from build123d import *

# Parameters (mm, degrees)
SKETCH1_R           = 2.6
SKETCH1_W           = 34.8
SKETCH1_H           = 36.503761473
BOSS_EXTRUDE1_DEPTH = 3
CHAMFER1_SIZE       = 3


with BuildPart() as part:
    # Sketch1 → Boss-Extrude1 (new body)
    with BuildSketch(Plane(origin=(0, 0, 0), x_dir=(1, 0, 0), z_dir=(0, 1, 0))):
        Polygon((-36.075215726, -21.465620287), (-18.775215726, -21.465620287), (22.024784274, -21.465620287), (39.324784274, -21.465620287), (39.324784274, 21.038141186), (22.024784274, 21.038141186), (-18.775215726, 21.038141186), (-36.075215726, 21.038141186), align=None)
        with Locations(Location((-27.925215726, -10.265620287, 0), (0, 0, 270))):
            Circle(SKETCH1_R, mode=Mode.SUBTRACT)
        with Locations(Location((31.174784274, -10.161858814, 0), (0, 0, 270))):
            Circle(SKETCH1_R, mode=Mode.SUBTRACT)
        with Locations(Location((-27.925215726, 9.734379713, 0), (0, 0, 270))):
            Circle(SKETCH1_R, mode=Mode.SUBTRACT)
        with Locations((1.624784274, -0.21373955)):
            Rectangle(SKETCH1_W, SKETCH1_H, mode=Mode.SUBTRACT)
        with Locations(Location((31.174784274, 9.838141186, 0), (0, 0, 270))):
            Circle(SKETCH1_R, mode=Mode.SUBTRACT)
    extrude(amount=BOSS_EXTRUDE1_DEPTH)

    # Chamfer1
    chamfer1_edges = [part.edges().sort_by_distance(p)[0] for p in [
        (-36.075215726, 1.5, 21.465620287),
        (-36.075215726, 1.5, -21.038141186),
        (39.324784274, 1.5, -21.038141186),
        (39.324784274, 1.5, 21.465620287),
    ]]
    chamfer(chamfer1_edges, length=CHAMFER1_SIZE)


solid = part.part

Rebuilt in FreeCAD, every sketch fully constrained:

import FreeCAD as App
import Part
import Sketcher

V = App.Vector
Q = App.Units.Quantity


def edges_at(feature, points):
    """Names of the edges that pass closest to the given points."""
    edges = feature.Shape.Edges
    near = lambda p: min(range(len(edges)), key=lambda i: edges[i].distToShape(Part.Vertex(*p))[0])
    return sorted({f"Edge{near(p) + 1}" for p in points})

doc = App.newDocument("Part")
body = doc.addObject("PartDesign::Body", "Body")

sketch1 = body.newObject("Sketcher::SketchObject", "Sketch")
sketch1.AttachmentSupport = (doc.getObject("XZ_Plane"), [""])
sketch1.MapMode = "FlatFace"
sketch1.addGeometry([
    Part.LineSegment(V(-36.1, 21.5, 0), V(39.3, 21.5, 0)),
    Part.LineSegment(V(39.3, 21.5, 0), V(39.3, -21, 0)),
    Part.LineSegment(V(39.3, -21, 0), V(-36.1, -21, 0)),
    Part.LineSegment(V(-36.1, -21, 0), V(-36.1, 21.5, 0)),
    Part.Circle(V(-27.9, 10.3, 0), V(0, 0, 1), 2.6),
    Part.Circle(V(31.2, 10.2, 0), V(0, 0, 1), 2.6),
    Part.Circle(V(-27.9, -9.7, 0), V(0, 0, 1), 2.6),
    Part.LineSegment(V(19, 18.5, 0), V(-15.8, 18.5, 0)),
    Part.LineSegment(V(-15.8, 18.5, 0), V(-15.8, -18, 0)),
    Part.LineSegment(V(-15.8, -18, 0), V(19, -18, 0)),
    Part.LineSegment(V(19, -18, 0), V(19, 18.5, 0)),
    Part.Circle(V(31.2, -9.8, 0), V(0, 0, 1), 2.6),
], False)
sketch1.addConstraint([
    Sketcher.Constraint("Coincident", 0, 2, 1, 1),
    Sketcher.Constraint("Coincident", 1, 2, 2, 1),
    Sketcher.Constraint("Coincident", 2, 2, 3, 1),
    Sketcher.Constraint("Coincident", 3, 2, 0, 1),
    Sketcher.Constraint("Coincident", 7, 2, 8, 1),
    Sketcher.Constraint("Coincident", 8, 2, 9, 1),
    Sketcher.Constraint("Coincident", 9, 2, 10, 1),
    Sketcher.Constraint("Coincident", 10, 2, 7, 1),
    Sketcher.Constraint("Horizontal", 0),
    Sketcher.Constraint("Vertical", 1),
    Sketcher.Constraint("Horizontal", 2),
    Sketcher.Constraint("Vertical", 3),
    Sketcher.Constraint("Horizontal", 7),
    Sketcher.Constraint("Vertical", 8),
    Sketcher.Constraint("Horizontal", 9),
    Sketcher.Constraint("Vertical", 10),
    Sketcher.Constraint("Equal", 4, 5),
    Sketcher.Constraint("Equal", 5, 6),
    Sketcher.Constraint("Equal", 6, 11),
    Sketcher.Constraint("Vertical", 4, 3, 6, 3),
    Sketcher.Constraint("Vertical", 5, 3, 11, 3),
    Sketcher.Constraint("Diameter", 4, Q("5.2 mm")),
    Sketcher.Constraint("DistanceX", 0, 1, 0, 2, Q("75.4 mm")),
    Sketcher.Constraint("DistanceX", 7, 2, 7, 1, Q("34.8 mm")),
    Sketcher.Constraint("DistanceY", 6, 3, 4, 3, Q("20 mm")),
    Sketcher.Constraint("DistanceY", 11, 3, 5, 3, Q("20 mm")),
    Sketcher.Constraint("DistanceY", 7, 2, 3, 2, Q("3 mm")),
    Sketcher.Constraint("DistanceY", 2, 2, 8, 2, Q("3 mm")),
    Sketcher.Constraint("DistanceX", 4, 3, 5, 3, Q("59.1 mm")),
    Sketcher.Constraint("DistanceY", 4, 3, 0, 2, Q("11.2 mm")),
    Sketcher.Constraint("DistanceY", 1, 2, 11, 3, Q("11.2 mm")),
    Sketcher.Constraint("DistanceX", 3, 2, 7, 2, Q("20.3 mm")),
    Sketcher.Constraint("DistanceX", 5, 3, 0, 2, Q("8.15 mm")),
    Sketcher.Constraint("DistanceY", 1, 2, 1, 1, Q("42.503761 mm")),
    Sketcher.Constraint("DistanceY", -1, 1, 4, 3, Q("10.26562 mm")),
    Sketcher.Constraint("DistanceX", 4, 3, -1, 1, Q("27.925216 mm")),
])
pad1 = body.newObject("PartDesign::Pad", "Pad")
pad1.Profile = sketch1
pad1.Length = 3
pad1.Reversed = True
doc.recompute()

chamfer = body.newObject("PartDesign::Chamfer", "Chamfer")
chamfer.Base = (pad1, edges_at(pad1, [
    (-36.075, 1.5, 21.466),
    (-36.075, 1.5, -21.038),
    (39.325, 1.5, -21.038),
    (39.325, 1.5, 21.466),
]))
chamfer.Size = 3

doc.recompute()
